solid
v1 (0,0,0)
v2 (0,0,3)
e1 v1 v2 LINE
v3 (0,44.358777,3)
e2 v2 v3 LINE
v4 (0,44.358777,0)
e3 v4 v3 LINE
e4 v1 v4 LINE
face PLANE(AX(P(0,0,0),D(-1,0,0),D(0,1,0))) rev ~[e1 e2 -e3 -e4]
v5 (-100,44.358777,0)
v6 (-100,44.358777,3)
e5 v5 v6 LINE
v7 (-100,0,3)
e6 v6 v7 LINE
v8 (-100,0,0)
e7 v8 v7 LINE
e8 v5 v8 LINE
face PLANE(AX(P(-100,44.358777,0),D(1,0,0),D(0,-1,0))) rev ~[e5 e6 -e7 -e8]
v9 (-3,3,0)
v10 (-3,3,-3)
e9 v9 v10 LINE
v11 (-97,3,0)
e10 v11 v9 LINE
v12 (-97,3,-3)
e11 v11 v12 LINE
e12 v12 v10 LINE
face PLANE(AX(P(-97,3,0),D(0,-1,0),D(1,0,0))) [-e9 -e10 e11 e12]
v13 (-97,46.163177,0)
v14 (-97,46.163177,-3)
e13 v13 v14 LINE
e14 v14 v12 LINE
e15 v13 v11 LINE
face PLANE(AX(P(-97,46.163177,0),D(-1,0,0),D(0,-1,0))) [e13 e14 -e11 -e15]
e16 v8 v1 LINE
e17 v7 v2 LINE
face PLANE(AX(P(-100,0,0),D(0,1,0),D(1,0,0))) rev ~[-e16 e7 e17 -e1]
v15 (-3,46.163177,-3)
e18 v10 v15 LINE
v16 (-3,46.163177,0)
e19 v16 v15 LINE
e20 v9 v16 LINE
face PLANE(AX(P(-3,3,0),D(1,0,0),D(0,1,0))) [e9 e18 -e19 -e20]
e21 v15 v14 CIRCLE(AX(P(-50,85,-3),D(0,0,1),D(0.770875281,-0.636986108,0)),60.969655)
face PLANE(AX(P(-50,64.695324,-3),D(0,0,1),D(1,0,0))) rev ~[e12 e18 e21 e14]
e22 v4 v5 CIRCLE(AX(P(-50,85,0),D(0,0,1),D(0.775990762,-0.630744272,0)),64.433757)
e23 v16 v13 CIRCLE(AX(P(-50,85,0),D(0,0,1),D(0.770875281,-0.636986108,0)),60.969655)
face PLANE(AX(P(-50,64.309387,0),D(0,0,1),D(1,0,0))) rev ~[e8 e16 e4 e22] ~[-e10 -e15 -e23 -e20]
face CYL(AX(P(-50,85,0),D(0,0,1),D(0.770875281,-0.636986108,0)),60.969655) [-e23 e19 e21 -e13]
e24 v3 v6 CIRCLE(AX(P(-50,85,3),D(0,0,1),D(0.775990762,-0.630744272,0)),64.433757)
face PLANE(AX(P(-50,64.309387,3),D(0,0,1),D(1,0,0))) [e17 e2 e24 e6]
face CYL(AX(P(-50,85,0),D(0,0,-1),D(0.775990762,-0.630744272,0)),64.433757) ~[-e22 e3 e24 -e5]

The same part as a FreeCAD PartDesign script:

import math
import FreeCAD as App
import Part
import Sketcher

V = App.Vector

doc = App.newDocument("Part")
params = doc.addObject("Spreadsheet::Sheet", "Params")
for row, (alias, value) in enumerate([
    ("sketch1_width", "100 mm"),
    ("pad1_length", "3 mm"),
    ("sketch2_width", "94 mm"),
    ("pad2_length", "3 mm"),
], start=1):
    params.set(f"A{row}", alias)
    params.set(f"B{row}", "=" + value)
    params.setAlias(f"B{row}", alias)

body = doc.addObject("PartDesign::Body", "Body")

# Sketch on XY plane
sketch1 = body.newObject("Sketcher::SketchObject", "Sketch")
sketch1.AttachmentSupport = (doc.getObject("XY_Plane"), [""])
sketch1.MapMode = "FlatFace"
sketch1.addGeometry([
    Part.ArcOfCircle(Part.Circle(V(-50, 85, 0), V(0, 0, 1), 64.433757), math.radians(-39.105055), math.radians(219.105055)),
    Part.LineSegment(V(-100, 44.358777, 0), V(-100, 0, 0)),
    Part.LineSegment(V(-100, 0, 0), V(0, 0, 0)),
    Part.LineSegment(V(0, 0, 0), V(0, 44.358777, 0)),
], False)
sketch1.addConstraint([
    Sketcher.Constraint("Coincident", 0, 2, 1, 1),
    Sketcher.Constraint("Coincident", 1, 2, 2, 1),
    Sketcher.Constraint("Coincident", 2, 2, 3, 1),
    Sketcher.Constraint("Coincident", 3, 2, 0, 1),
    Sketcher.Constraint("Vertical", 1),
    Sketcher.Constraint("Horizontal", 2),
    Sketcher.Constraint("Vertical", 3),
    Sketcher.Constraint("Coincident", 2, 2, -1, 1),
    Sketcher.Constraint("Horizontal", 0, 2, 3, 2),
    Sketcher.Constraint("DistanceX", 2, 1, 2, 2, 100.0),
    Sketcher.Constraint("DistanceY", -1, 1, 0, 3, 85.0),
    Sketcher.Constraint("Radius", 0, 64.433757),
])
sketch1.setExpression("Constraints[9]", "Params.sketch1_width")
pad1 = body.newObject("PartDesign::Pad", "Pad")
pad1.Profile = sketch1
pad1.setExpression("Length", "Params.pad1_length")

# Sketch on XY plane
sketch2 = body.newObject("Sketcher::SketchObject", "Sketch001")
sketch2.AttachmentSupport = (doc.getObject("XY_Plane"), [""])
sketch2.MapMode = "FlatFace"
sketch2.addGeometry([
    Part.LineSegment(V(-3, 3, 0), V(-3, 46.163177, 0)),
    Part.ArcOfCircle(Part.Circle(V(-50, 85, 0), V(0, 0, 1), 60.969655), math.radians(-39.567447), math.radians(219.567447)),
    Part.LineSegment(V(-97, 46.163177, 0), V(-97, 3, 0)),
    Part.LineSegment(V(-97, 3, 0), V(-3, 3, 0)),
], False)
sketch2.addConstraint([
    Sketcher.Constraint("Coincident", 0, 2, 1, 1),
    Sketcher.Constraint("Coincident", 1, 2, 2, 1),
    Sketcher.Constraint("Coincident", 2, 2, 3, 1),
    Sketcher.Constraint("Coincident", 3, 2, 0, 1),
    Sketcher.Constraint("Vertical", 0),
    Sketcher.Constraint("Vertical", 2),
    Sketcher.Constraint("Horizontal", 3),
    Sketcher.Constraint("Horizontal", 0, 2, 1, 2),
    Sketcher.Constraint("DistanceX", 3, 1, 3, 2, 94.0),
    Sketcher.Constraint("DistanceX", 1, 3, -1, 1, 50.0),
    Sketcher.Constraint("DistanceY", -1, 1, 1, 3, 85.0),
    Sketcher.Constraint("DistanceY", -1, 1, 2, 2, 3.0),
    Sketcher.Constraint("Radius", 1, 60.969655),
])
sketch2.setExpression("Constraints[8]", "Params.sketch2_width")
pad2 = body.newObject("PartDesign::Pad", "Pad001")
pad2.Profile = sketch2
pad2.setExpression("Length", "Params.pad2_length")
pad2.Reversed = True

doc.recompute()
